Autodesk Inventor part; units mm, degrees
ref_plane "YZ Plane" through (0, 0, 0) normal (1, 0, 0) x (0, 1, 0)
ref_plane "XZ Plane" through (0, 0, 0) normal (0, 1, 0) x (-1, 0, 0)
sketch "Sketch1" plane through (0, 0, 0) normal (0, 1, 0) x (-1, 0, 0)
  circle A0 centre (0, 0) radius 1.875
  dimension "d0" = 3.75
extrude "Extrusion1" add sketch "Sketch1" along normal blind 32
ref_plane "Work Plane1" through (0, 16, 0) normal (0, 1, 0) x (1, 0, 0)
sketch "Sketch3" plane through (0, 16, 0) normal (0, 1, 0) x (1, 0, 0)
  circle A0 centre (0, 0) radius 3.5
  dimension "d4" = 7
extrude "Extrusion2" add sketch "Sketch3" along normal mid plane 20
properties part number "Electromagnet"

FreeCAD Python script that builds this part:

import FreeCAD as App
import Part
import Sketcher

doc = App.newDocument("Part")
params = doc.addObject("Spreadsheet::Sheet", "Params")
for row, (alias, value) in enumerate([
    ("sketch1_diameter", "3.75 mm"),
    ("pad1_length", "32 mm"),
    ("sketch2_diameter", "7 mm"),
    ("pad2_length", "20 mm"),
], start=1):
    params.set(f"A{row}", alias)
    params.set(f"B{row}", "=" + value)
    params.setAlias(f"B{row}", alias)

body = doc.addObject("PartDesign::Body", "Body")

# Sketch on XZ plane
sketch1 = body.newObject("Sketcher::SketchObject", "Sketch")
sketch1.AttachmentSupport = (doc.getObject("XZ_Plane"), [""])
sketch1.MapMode = "FlatFace"
sketch1.addGeometry(Part.Circle(App.Vector(0, 0, 0), App.Vector(0, 0, 1), 1.9), False)
sketch1.addConstraint([
    Sketcher.Constraint("Coincident", 0, 3, -1, 1),
    Sketcher.Constraint("Diameter", 0, 3.75),
])
sketch1.setExpression("Constraints[1]", "Params.sketch1_diameter")
pad1 = body.newObject("PartDesign::Pad", "Pad")
pad1.Profile = sketch1
pad1.setExpression("Length", "Params.pad1_length")
pad1.Reversed = True

# Sketch on XZ plane
sketch2 = body.newObject("Sketcher::SketchObject", "Sketch001")
sketch2.AttachmentSupport = (doc.getObject("XZ_Plane"), [""])
sketch2.MapMode = "FlatFace"
sketch2.AttachmentOffset = App.Placement(App.Vector(0, 0, -16), App.Rotation())
sketch2.addGeometry(Part.Circle(App.Vector(0, 0, 0), App.Vector(0, 0, 1), 3.5), False)
sketch2.addConstraint([
    Sketcher.Constraint("Coincident", 0, 3, -1, 1),
    Sketcher.Constraint("Diameter", 0, 7.0),
])
sketch2.setExpression("Constraints[1]", "Params.sketch2_diameter")
pad2 = body.newObject("PartDesign::Pad", "Pad001")
pad2.Profile = sketch2
pad2.setExpression("Length", "Params.pad2_length")
pad2.Midplane = True

doc.recompute()
